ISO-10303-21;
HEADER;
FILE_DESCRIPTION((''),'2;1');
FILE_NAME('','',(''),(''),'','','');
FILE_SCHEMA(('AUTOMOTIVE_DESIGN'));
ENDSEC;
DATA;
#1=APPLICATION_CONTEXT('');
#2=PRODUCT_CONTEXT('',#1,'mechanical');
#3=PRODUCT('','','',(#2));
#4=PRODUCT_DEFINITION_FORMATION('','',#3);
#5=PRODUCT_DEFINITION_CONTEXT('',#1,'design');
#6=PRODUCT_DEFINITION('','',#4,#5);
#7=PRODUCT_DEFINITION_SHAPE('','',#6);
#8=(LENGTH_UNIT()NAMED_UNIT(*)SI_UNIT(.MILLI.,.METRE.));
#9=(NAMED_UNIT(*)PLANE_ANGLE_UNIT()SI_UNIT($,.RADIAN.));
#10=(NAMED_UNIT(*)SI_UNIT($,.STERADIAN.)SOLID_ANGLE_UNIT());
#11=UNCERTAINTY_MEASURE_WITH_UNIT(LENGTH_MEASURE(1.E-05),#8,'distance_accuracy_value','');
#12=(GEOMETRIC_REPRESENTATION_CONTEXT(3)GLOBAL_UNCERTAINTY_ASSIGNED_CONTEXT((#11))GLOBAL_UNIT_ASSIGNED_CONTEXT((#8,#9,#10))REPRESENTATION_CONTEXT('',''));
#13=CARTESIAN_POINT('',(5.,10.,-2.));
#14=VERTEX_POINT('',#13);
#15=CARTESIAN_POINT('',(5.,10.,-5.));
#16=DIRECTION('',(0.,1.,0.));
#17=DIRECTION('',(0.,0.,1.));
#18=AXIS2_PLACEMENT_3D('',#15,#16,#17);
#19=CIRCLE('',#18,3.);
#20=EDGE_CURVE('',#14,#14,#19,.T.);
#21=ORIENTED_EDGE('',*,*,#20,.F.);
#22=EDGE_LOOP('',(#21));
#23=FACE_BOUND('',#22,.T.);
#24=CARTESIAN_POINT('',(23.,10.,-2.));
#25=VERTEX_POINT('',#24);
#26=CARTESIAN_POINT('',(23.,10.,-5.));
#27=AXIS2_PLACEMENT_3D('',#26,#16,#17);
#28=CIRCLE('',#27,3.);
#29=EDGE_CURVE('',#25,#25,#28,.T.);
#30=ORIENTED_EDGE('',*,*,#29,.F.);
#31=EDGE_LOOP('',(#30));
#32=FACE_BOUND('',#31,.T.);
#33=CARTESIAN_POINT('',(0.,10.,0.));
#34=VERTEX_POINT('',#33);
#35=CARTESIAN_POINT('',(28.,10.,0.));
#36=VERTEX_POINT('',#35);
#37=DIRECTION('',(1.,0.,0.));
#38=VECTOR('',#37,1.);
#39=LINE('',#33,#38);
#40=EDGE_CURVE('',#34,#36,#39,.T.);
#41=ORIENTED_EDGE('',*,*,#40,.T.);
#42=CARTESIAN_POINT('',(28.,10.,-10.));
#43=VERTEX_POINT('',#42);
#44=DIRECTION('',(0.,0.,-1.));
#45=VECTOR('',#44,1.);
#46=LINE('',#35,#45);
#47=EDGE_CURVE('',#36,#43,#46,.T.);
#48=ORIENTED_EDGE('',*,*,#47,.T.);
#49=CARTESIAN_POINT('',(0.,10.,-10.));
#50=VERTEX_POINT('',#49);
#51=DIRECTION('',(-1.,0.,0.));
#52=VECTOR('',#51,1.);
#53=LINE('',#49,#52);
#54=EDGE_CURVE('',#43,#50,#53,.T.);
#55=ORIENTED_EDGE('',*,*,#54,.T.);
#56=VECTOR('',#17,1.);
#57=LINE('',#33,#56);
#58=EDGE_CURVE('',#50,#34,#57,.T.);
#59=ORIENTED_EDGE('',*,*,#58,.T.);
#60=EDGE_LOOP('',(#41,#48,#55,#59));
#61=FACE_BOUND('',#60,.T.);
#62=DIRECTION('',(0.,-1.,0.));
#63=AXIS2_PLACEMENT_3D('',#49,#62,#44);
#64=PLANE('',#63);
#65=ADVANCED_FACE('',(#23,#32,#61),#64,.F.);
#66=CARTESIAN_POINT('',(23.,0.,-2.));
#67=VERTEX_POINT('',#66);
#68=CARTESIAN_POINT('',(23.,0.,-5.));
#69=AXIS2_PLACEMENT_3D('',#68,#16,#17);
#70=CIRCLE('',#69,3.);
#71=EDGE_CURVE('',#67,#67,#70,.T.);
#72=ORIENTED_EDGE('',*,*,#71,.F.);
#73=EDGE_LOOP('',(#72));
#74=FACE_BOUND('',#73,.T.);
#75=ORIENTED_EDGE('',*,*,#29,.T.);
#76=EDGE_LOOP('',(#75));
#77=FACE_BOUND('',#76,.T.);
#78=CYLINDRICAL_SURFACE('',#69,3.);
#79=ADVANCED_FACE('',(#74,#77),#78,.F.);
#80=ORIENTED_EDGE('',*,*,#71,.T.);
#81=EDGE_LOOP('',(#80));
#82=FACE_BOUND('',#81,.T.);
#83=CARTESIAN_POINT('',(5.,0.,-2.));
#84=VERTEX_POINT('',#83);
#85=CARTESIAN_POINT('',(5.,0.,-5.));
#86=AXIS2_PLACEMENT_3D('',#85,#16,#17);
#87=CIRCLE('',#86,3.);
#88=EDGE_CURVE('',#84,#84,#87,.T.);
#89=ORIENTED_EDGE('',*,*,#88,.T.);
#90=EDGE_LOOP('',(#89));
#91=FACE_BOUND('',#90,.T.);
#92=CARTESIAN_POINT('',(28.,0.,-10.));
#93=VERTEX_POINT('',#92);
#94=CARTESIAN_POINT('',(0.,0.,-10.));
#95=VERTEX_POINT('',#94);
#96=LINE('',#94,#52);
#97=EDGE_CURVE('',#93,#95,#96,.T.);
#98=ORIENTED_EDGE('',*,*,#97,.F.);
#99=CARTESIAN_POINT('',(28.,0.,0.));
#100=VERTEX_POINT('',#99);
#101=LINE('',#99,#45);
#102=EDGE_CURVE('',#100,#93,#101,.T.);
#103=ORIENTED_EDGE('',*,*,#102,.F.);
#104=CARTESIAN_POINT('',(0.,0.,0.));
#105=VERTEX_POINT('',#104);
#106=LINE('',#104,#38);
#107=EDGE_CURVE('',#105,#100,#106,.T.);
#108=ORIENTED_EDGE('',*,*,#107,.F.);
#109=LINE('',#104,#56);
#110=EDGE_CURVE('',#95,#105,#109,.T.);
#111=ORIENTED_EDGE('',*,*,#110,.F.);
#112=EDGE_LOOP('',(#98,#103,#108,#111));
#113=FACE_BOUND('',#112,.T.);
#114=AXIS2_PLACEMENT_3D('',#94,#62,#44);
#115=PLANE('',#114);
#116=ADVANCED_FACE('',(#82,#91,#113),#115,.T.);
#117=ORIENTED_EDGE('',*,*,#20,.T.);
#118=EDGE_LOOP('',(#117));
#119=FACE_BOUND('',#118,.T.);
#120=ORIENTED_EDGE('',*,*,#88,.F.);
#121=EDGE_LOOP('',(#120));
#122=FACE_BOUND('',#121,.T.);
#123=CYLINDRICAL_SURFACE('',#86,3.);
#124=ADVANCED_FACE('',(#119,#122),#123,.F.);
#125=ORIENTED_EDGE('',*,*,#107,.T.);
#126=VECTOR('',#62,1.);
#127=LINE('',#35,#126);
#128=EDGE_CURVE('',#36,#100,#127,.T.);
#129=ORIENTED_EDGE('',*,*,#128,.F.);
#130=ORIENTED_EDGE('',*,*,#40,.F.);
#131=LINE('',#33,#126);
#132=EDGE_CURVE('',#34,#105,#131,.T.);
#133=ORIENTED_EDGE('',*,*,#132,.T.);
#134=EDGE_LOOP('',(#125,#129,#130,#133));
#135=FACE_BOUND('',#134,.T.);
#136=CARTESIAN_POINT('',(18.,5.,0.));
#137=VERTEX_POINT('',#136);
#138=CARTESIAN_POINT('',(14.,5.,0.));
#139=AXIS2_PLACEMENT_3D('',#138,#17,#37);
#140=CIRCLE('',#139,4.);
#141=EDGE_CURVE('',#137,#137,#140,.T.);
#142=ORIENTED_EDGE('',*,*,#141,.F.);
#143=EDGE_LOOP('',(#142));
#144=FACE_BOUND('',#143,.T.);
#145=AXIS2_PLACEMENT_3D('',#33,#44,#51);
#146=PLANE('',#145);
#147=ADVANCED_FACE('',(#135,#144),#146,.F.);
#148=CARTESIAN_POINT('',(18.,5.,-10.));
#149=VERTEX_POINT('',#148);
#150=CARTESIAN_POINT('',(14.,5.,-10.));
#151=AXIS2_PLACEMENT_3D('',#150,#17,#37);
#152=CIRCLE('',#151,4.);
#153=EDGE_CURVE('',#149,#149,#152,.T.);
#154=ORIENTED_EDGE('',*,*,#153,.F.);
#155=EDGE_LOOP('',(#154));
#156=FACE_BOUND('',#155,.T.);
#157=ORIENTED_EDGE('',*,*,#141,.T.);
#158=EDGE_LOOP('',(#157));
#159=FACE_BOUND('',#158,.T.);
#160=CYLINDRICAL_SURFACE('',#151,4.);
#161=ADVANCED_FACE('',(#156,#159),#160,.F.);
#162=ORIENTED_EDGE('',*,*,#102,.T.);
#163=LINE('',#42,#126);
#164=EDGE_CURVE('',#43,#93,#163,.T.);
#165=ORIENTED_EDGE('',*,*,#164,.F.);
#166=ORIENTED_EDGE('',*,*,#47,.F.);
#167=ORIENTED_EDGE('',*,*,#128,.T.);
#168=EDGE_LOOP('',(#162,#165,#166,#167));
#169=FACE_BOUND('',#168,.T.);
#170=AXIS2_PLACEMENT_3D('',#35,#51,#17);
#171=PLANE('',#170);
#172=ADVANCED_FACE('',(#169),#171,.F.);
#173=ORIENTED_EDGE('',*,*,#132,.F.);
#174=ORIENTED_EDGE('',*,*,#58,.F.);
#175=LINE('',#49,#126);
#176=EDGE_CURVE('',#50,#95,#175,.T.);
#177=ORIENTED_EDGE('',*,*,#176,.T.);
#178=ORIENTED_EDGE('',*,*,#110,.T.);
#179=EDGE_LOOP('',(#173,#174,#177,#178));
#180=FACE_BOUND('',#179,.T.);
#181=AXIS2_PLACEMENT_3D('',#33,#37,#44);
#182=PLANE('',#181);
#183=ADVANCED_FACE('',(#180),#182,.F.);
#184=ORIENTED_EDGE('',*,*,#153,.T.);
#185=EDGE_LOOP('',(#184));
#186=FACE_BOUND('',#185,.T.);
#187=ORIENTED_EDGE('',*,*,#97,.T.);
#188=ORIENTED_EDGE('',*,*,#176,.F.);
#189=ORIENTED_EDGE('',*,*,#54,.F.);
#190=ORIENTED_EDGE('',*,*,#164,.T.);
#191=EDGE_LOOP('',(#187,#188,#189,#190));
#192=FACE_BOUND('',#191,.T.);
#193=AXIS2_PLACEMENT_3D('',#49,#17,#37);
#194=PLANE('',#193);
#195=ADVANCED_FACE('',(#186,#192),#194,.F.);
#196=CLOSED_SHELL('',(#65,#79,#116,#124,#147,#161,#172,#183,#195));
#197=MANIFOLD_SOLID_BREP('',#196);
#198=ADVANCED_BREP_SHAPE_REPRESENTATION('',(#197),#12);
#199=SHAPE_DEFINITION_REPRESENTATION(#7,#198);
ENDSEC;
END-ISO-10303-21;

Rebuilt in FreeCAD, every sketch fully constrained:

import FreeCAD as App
import Part
import Sketcher
from FreeCAD import Vector
Q = App.Units.Quantity

doc = App.newDocument("Part")
body = doc.addObject("PartDesign::Body", "Body")

sketch1 = body.newObject("Sketcher::SketchObject", "Sketch")
sketch1.AttachmentSupport = (doc.getObject("XZ_Plane"), [""])
sketch1.MapMode = "FlatFace"
sketch1.addGeometry([
    Part.LineSegment(Vector(0, -10, 0), Vector(0, 0, 0)),
    Part.LineSegment(Vector(0, 0, 0), Vector(28, 0, 0)),
    Part.LineSegment(Vector(28, 0, 0), Vector(28, -10, 0)),
    Part.LineSegment(Vector(28, -10, 0), Vector(0, -10, 0)),
], False)
sketch1.addConstraint([
    Sketcher.Constraint("Coincident", 0, 2, 1, 1),
    Sketcher.Constraint("Coincident", 1, 2, 2, 1),
    Sketcher.Constraint("Coincident", 2, 2, 3, 1),
    Sketcher.Constraint("Coincident", 3, 2, 0, 1),
    Sketcher.Constraint("Vertical", 0),
    Sketcher.Constraint("Horizontal", 1),
    Sketcher.Constraint("Vertical", 2),
    Sketcher.Constraint("Horizontal", 3),
    Sketcher.Constraint("Coincident", 0, 2, -1, 1),
    Sketcher.Constraint("DistanceX", 1, 1, 1, 2, Q("28 mm")),
    Sketcher.Constraint("DistanceY", 0, 1, 0, 2, Q("10 mm")),
])
pad1 = body.newObject("PartDesign::Pad", "Pad")
pad1.Profile = sketch1
pad1.Length = 10
pad1.Reversed = True

sketch2 = body.newObject("Sketcher::SketchObject", "Sketch001")
sketch2.AttachmentSupport = (doc.getObject("XY_Plane"), [""])
sketch2.MapMode = "FlatFace"
sketch2.addGeometry(Part.Circle(Vector(14, 5, 0), Vector(0, 0, 1), 4), False)
sketch2.addConstraint([
    Sketcher.Constraint("Diameter", 0, Q("8 mm")),
    Sketcher.Constraint("DistanceX", -1, 1, 0, 3, Q("14 mm")),
    Sketcher.Constraint("DistanceY", -1, 1, 0, 3, Q("5 mm")),
])
pocket1 = body.newObject("PartDesign::Pocket", "Pocket")
pocket1.Profile = sketch2
pocket1.Type = "ThroughAll"

sketch3 = body.newObject("Sketcher::SketchObject", "Sketch002")
sketch3.AttachmentSupport = (doc.getObject("XZ_Plane"), [""])
sketch3.MapMode = "FlatFace"
sketch3.AttachmentOffset = App.Placement(Vector(0, 0, -10), App.Rotation())
sketch3.addGeometry([
    Part.Circle(Vector(5, -5, 0), Vector(0, 0, 1), 3),
    Part.Circle(Vector(23, -5, 0), Vector(0, 0, 1), 3),
], False)
sketch3.addConstraint([
    Sketcher.Constraint("Equal", 0, 1),
    Sketcher.Constraint("Horizontal", 0, 3, 1, 3),
    Sketcher.Constraint("Diameter", 0, Q("6 mm")),
    Sketcher.Constraint("DistanceX", -1, 1, 0, 3, Q("5 mm")),
    Sketcher.Constraint("DistanceY", 0, 3, -1, 1, Q("5 mm")),
    Sketcher.Constraint("DistanceX", -1, 1, 1, 3, Q("23 mm")),
])
pocket2 = body.newObject("PartDesign::Pocket", "Pocket001")
pocket2.Profile = sketch3
pocket2.Type = "ThroughAll"
pocket2.Reversed = True

doc.recompute()
